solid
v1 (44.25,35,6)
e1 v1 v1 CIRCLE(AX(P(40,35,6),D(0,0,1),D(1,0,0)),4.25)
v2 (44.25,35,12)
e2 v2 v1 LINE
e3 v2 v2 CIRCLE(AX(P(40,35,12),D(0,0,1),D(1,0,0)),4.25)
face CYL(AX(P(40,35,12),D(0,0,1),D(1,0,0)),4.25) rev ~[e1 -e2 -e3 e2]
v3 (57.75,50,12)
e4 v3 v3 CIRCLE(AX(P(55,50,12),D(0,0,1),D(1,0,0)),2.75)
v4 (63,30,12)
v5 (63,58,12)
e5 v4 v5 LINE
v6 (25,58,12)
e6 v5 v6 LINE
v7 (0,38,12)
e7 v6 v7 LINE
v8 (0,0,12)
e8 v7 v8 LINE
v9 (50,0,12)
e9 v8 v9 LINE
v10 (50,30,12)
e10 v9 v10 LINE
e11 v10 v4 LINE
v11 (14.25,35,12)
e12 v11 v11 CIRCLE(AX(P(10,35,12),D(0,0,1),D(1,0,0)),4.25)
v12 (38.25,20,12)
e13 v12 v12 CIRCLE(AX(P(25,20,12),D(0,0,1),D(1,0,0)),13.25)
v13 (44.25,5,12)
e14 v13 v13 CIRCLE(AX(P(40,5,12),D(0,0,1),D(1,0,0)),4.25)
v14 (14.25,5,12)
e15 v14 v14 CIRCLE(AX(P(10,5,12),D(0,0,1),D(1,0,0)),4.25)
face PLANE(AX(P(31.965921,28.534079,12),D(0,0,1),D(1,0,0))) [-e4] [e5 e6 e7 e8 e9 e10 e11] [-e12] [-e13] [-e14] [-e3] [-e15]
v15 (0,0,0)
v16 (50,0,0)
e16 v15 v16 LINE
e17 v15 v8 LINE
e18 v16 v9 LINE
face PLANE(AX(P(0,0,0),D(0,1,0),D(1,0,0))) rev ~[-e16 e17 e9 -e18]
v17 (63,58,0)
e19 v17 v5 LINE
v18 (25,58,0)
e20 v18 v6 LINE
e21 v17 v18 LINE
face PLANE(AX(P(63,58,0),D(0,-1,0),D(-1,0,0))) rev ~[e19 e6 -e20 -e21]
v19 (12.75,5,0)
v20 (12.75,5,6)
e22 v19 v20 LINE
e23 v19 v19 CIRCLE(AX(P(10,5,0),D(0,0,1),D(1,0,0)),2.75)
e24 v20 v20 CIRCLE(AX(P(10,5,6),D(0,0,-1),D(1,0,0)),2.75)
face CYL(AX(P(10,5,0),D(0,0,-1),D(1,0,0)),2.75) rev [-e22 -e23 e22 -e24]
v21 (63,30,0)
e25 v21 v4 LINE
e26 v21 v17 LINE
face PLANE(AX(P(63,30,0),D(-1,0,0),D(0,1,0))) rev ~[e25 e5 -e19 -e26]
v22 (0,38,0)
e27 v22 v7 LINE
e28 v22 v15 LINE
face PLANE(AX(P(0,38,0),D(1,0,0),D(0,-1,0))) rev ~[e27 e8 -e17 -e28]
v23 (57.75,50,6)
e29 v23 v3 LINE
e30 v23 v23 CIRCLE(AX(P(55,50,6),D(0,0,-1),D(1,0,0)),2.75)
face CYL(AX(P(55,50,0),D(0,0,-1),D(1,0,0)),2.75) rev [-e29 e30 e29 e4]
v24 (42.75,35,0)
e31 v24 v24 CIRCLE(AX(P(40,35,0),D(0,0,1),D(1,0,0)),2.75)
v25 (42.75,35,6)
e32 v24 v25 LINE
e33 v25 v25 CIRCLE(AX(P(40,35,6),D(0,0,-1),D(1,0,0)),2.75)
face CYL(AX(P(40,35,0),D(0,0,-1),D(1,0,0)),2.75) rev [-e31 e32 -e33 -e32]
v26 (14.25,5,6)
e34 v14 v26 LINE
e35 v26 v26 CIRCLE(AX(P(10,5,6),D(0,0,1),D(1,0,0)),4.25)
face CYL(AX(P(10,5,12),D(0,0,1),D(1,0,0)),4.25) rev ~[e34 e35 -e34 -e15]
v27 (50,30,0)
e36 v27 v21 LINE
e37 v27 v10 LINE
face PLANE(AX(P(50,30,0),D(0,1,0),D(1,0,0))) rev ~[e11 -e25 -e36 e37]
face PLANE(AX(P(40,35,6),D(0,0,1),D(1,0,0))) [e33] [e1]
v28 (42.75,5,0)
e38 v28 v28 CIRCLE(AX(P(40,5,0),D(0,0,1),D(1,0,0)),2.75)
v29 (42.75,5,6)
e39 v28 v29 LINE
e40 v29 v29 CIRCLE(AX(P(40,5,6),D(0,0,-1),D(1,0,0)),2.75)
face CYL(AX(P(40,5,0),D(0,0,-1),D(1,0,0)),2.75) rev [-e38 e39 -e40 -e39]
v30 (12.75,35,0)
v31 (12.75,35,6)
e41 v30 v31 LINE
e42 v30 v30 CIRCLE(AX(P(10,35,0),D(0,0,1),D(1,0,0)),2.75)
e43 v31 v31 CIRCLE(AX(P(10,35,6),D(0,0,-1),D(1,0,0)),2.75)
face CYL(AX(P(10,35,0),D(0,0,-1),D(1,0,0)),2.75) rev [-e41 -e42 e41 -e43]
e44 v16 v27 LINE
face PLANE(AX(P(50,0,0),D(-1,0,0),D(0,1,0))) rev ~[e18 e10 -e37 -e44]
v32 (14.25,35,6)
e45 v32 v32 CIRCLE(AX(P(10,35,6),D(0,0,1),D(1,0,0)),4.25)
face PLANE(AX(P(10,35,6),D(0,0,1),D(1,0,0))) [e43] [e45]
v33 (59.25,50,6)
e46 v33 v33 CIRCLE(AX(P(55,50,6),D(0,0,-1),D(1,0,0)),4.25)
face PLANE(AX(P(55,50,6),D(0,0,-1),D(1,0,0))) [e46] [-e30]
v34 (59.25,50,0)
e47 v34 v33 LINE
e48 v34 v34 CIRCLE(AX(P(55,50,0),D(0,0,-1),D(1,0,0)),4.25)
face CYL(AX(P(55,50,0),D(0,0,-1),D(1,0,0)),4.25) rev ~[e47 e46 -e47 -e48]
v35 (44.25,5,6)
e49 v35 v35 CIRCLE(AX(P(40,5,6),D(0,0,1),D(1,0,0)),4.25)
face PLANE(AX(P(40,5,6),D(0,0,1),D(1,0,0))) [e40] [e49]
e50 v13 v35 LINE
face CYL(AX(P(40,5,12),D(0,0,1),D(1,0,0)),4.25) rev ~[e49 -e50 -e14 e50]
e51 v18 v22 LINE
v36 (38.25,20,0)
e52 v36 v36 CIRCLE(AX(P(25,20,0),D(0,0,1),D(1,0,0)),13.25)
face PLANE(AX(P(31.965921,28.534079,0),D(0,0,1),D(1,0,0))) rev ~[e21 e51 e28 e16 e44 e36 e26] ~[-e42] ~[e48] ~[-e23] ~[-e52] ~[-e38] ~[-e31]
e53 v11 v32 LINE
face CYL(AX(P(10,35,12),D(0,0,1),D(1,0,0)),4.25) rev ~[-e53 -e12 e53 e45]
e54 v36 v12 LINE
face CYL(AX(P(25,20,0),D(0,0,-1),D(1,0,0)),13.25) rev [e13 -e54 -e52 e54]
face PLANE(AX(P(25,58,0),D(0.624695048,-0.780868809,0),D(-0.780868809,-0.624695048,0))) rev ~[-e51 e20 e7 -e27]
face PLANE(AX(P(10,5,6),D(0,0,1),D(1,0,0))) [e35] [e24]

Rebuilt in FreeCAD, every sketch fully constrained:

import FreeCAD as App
import Part
import Sketcher

V = App.Vector


def add_polygon(sketch, points):
    """Adds a closed chain of lines whose ends are joined by coincident constraints."""
    first, n = sketch.GeometryCount, len(points)
    for a, b in zip(points, points[1:] + points[:1]):
        sketch.addGeometry(Part.LineSegment(App.Vector(*a, 0), App.Vector(*b, 0)), False)
    for i in range(n):
        sketch.addConstraint(Sketcher.Constraint("Coincident", first + i, 2, first + (i + 1) % n, 1))

doc = App.newDocument("Part")
body = doc.addObject("PartDesign::Body", "Body")

# Sketch on XY plane
sketch1 = doc.addObject("Sketcher::SketchObject", "Sketch")
body.addObject(sketch1)
sketch1.AttachmentSupport = (doc.XY_Plane, [""])
sketch1.MapMode = "FlatFace"
add_polygon(sketch1, [(0, 38), (0, 0), (50, 0), (50, 30), (63, 30), (63, 58), (25, 58)])  # lines 0-6
sketch1.addGeometry(Part.Circle(V(10, 5, 0), V(0, 0, 1), 2.8), False)  # 7
sketch1.addGeometry(Part.Circle(V(25, 20, 0), V(0, 0, 1), 13.2), False)  # 8
sketch1.addGeometry(Part.Circle(V(40, 5, 0), V(0, 0, 1), 2.8), False)  # 9
sketch1.addGeometry(Part.Circle(V(10, 35, 0), V(0, 0, 1), 2.8), False)  # 10
sketch1.addGeometry(Part.Circle(V(40, 35, 0), V(0, 0, 1), 2.8), False)  # 11
sketch1.addGeometry(Part.Circle(V(55, 50, 0), V(0, 0, 1), 2.8), False)  # 12
sketch1.addConstraint([
    Sketcher.Constraint("Vertical", 0),
    Sketcher.Constraint("Horizontal", 1),
    Sketcher.Constraint("Vertical", 2),
    Sketcher.Constraint("Horizontal", 3),
    Sketcher.Constraint("Vertical", 4),
    Sketcher.Constraint("Horizontal", 5),
    Sketcher.Constraint("Coincident", 0, 2, -1, 1),
    Sketcher.Constraint("Equal", 7, 9),
    Sketcher.Constraint("Equal", 9, 10),
    Sketcher.Constraint("Equal", 10, 11),
    Sketcher.Constraint("Equal", 11, 12),
    Sketcher.Constraint("Horizontal", 7, 3, 9, 3),
    Sketcher.Constraint("Horizontal", 10, 3, 11, 3),
    Sketcher.Constraint("Vertical", 7, 3, 10, 3),
    Sketcher.Constraint("Vertical", 9, 3, 11, 3),
    Sketcher.Constraint("Vertical", 8, 3, 5, 2),
    Sketcher.Constraint("Equal", 5, 0),
    Sketcher.Constraint("Diameter", 7, 5.5),
    Sketcher.Constraint("Diameter", 8, 26.5),
    Sketcher.Constraint("DistanceX", 1, 1, 1, 2, 50.0),
    Sketcher.Constraint("DistanceX", 3, 1, 3, 2, 13.0),
    Sketcher.Constraint("DistanceX", 5, 2, 5, 1, 38.0),
    Sketcher.Constraint("DistanceY", 2, 1, 2, 2, 30.0),
    Sketcher.Constraint("DistanceY", 4, 1, 4, 2, 28.0),
    Sketcher.Constraint("DistanceX", -1, 1, 7, 3, 10.0),
    Sketcher.Constraint("DistanceY", -1, 1, 7, 3, 5.0),
    Sketcher.Constraint("DistanceY", -1, 1, 8, 3, 20.0),
    Sketcher.Constraint("DistanceX", -1, 1, 9, 3, 40.0),
    Sketcher.Constraint("DistanceY", -1, 1, 10, 3, 35.0),
    Sketcher.Constraint("DistanceX", -1, 1, 12, 3, 55.0),
    Sketcher.Constraint("DistanceY", -1, 1, 12, 3, 50.0),
])
pad1 = doc.addObject("PartDesign::Pad", "Pad")
body.addObject(pad1)
pad1.Profile = sketch1
pad1.Length = 12

# Sketch on XY plane
sketch2 = doc.addObject("Sketcher::SketchObject", "Sketch001")
body.addObject(sketch2)
sketch2.AttachmentSupport = (doc.XY_Plane, [""])
sketch2.MapMode = "FlatFace"
sketch2.AttachmentOffset = App.Placement(V(0, 0, 12), App.Rotation())
sketch2.addGeometry([
    Part.Circle(V(10, 35, 0), V(0, 0, 1), 4.2),
    Part.Circle(V(40, 35, 0), V(0, 0, 1), 4.2),
    Part.Circle(V(10, 5, 0), V(0, 0, 1), 4.2),
    Part.Circle(V(40, 5, 0), V(0, 0, 1), 4.2),
], False)
sketch2.addConstraint([
    Sketcher.Constraint("Equal", 0, 1),
    Sketcher.Constraint("Equal", 1, 2),
    Sketcher.Constraint("Equal", 2, 3),
    Sketcher.Constraint("Horizontal", 0, 3, 1, 3),
    Sketcher.Constraint("Horizontal", 2, 3, 3, 3),
    Sketcher.Constraint("Vertical", 0, 3, 2, 3),
    Sketcher.Constraint("Vertical", 1, 3, 3, 3),
    Sketcher.Constraint("Diameter", 0, 8.5),
    Sketcher.Constraint("DistanceX", -1, 1, 0, 3, 10.0),
    Sketcher.Constraint("DistanceY", -1, 1, 0, 3, 35.0),
    Sketcher.Constraint("DistanceX", -1, 1, 1, 3, 40.0),
    Sketcher.Constraint("DistanceY", -1, 1, 2, 3, 5.0),
])
pocket1 = doc.addObject("PartDesign::Pocket", "Pocket")
body.addObject(pocket1)
pocket1.Profile = sketch2
pocket1.Length = 6

# Sketch on XY plane
sketch3 = doc.addObject("Sketcher::SketchObject", "Sketch002")
body.addObject(sketch3)
sketch3.AttachmentSupport = (doc.XY_Plane, [""])
sketch3.MapMode = "FlatFace"
sketch3.addGeometry(Part.Circle(V(55, 50, 0), V(0, 0, 1), 4.2), False)
sketch3.addConstraint([
    Sketcher.Constraint("Diameter", 0, 8.5),
    Sketcher.Constraint("DistanceX", -1, 1, 0, 3, 55.0),
    Sketcher.Constraint("DistanceY", -1, 1, 0, 3, 50.0),
])
pocket2 = doc.addObject("PartDesign::Pocket", "Pocket001")
body.addObject(pocket2)
pocket2.Profile = sketch3
pocket2.Length = 6
pocket2.Reversed = True

doc.recompute()
